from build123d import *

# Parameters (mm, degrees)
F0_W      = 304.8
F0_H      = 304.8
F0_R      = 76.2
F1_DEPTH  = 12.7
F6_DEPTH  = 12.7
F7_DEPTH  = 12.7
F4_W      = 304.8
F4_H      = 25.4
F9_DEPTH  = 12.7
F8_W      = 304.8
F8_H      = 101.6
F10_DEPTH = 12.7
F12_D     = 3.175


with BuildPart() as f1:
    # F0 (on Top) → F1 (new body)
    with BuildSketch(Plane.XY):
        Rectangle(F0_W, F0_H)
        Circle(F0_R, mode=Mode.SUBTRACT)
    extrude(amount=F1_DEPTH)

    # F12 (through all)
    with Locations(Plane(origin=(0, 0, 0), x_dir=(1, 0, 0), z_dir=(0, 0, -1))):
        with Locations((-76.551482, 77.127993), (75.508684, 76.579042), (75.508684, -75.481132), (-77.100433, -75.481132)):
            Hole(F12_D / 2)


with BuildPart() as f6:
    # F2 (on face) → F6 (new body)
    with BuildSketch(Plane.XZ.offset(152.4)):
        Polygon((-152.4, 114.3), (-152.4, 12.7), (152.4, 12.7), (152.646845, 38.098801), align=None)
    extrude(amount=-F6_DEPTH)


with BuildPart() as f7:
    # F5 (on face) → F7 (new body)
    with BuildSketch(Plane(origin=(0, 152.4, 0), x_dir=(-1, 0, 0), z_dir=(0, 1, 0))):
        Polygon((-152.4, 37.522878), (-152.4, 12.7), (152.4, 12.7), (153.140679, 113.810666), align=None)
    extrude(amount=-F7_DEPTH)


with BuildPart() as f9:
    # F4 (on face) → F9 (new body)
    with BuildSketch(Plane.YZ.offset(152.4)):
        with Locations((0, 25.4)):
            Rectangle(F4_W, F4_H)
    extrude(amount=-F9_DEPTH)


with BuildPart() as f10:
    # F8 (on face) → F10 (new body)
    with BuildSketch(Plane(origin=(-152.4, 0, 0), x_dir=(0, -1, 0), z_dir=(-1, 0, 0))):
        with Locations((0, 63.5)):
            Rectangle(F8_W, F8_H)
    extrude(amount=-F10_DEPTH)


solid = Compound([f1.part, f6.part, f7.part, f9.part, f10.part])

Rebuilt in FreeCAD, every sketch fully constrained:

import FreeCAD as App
import Part
import Sketcher
from FreeCAD import Vector
Q = App.Units.Quantity


def add_polygon(sketch, points):
    """Adds a closed chain of lines whose ends are joined by coincident constraints."""
    first, n = sketch.GeometryCount, len(points)
    for a, b in zip(points, points[1:] + points[:1]):
        sketch.addGeometry(Part.LineSegment(App.Vector(*a, 0), App.Vector(*b, 0)), False)
    for i in range(n):
        sketch.addConstraint(Sketcher.Constraint("Coincident", first + i, 2, first + (i + 1) % n, 1))

doc = App.newDocument("Part")
params = doc.addObject("Spreadsheet::Sheet", "Params")
for row, (alias, value) in enumerate([
    ("sketch1_diameter", "6 in"),
    ("sketch1_width", "12 in"),
    ("pad1_length", "0.5 in"),
    ("sketch2_diameter", "0.125 in"),
    ("hole_diameter", "0.125 in"),
    ("sketch3_width", "12 in"),
    ("sketch3_height", "4 in"),
    ("sketch3_length", "1 in"),
    ("pad2_length", "0.5 in"),
    ("sketch4_width", "12 in"),
    ("pad3_length", "0.5 in"),
    ("sketch5_width", "12 in"),
    ("sketch5_height", "1 in"),
    ("pad4_length", "0.5 in"),
    ("sketch6_width", "12 in"),
    ("sketch6_height", "4 in"),
    ("pad5_length", "0.5 in"),
], start=1):
    params.set(f"A{row}", alias)
    params.set(f"B{row}", "=" + value)
    params.setAlias(f"B{row}", alias)

body = doc.addObject("PartDesign::Body", "Body")

# Sketch on XY plane
sketch1 = body.newObject("Sketcher::SketchObject", "Sketch")
sketch1.AttachmentSupport = (doc.getObject("XY_Plane"), [""])
sketch1.MapMode = "FlatFace"
add_polygon(sketch1, [(-152, 152), (-152, -152), (152, -152), (152, 152)])  # lines 0-3
sketch1.addGeometry(Part.Circle(Vector(0, 0, 0), Vector(0, 0, 1), 76), False)  # 4
sketch1.addConstraint(Sketcher.Constraint("Vertical", 0))
sketch1.addConstraint(Sketcher.Constraint("Horizontal", 1))
sketch1.addConstraint(Sketcher.Constraint("Vertical", 2))
sketch1.addConstraint(Sketcher.Constraint("Horizontal", 3))
sketch1.addConstraint(Sketcher.Constraint("Coincident", 4, 3, -1, 1))
sketch1.addConstraint(Sketcher.Constraint("Symmetric", 0, 2, 2, 2, -1, 1))
sketch1.addConstraint(Sketcher.Constraint("Equal", 3, 0))
sketch1.addConstraint(Sketcher.Constraint("Diameter", 4, Q("6 in")))
sketch1.addConstraint(Sketcher.Constraint("DistanceX", 1, 1, 1, 2, Q("12 in")))
sketch1.setExpression("Constraints[11]", "Params.sketch1_diameter")
sketch1.setExpression("Constraints[12]", "Params.sketch1_width")
pad1 = body.newObject("PartDesign::Pad", "Pad")
pad1.Profile = sketch1
pad1.setExpression("Length", "Params.pad1_length")

# Sketch on XY plane
sketch2 = body.newObject("Sketcher::SketchObject", "Sketch001")
sketch2.AttachmentSupport = (doc.getObject("XY_Plane"), [""])
sketch2.MapMode = "FlatFace"
sketch2.addGeometry(Part.Circle(Vector(-76.6, -77.1, 0), Vector(0, 0, 1), 1.6), False)
sketch2.addGeometry(Part.Circle(Vector(75.5, -76.6, 0), Vector(0, 0, 1), 1.6), False)
sketch2.addGeometry(Part.Circle(Vector(75.5, 75.5, 0), Vector(0, 0, 1), 1.6), False)
sketch2.addGeometry(Part.Circle(Vector(-77.1, 75.5, 0), Vector(0, 0, 1), 1.6), False)
sketch2.addConstraint(Sketcher.Constraint("Equal", 0, 1))
sketch2.addConstraint(Sketcher.Constraint("Equal", 1, 2))
sketch2.addConstraint(Sketcher.Constraint("Equal", 2, 3))
sketch2.addConstraint(Sketcher.Constraint("Horizontal", 2, 3, 3, 3))
sketch2.addConstraint(Sketcher.Constraint("Vertical", 1, 3, 2, 3))
sketch2.addConstraint(Sketcher.Constraint("Diameter", 0, Q("0.125 in")))
sketch2.addConstraint(Sketcher.Constraint("DistanceX", 0, 3, -1, 1, 76.551482))
sketch2.addConstraint(Sketcher.Constraint("DistanceY", 1, 3, -1, 1, 76.579042))
sketch2.addConstraint(Sketcher.Constraint("DistanceY", 0, 3, 1, 3, 0.548951))
sketch2.addConstraint(Sketcher.Constraint("DistanceX", 3, 3, 0, 3, 0.548951))
sketch2.addConstraint(Sketcher.Constraint("DistanceX", -1, 1, 1, 3, 75.508684))
sketch2.addConstraint(Sketcher.Constraint("DistanceY", -1, 1, 2, 3, 75.481132))
sketch2.setExpression("Constraints[5]", "Params.sketch2_diameter")
doc.recompute()
hole = body.newObject("PartDesign::Hole", "Hole")
hole.Profile = sketch2
hole.ThreadType = "None"
hole.setExpression("Diameter", "Params.hole_diameter")
hole.DepthType = "ThroughAll"
hole.Reversed = True
body2 = doc.addObject("PartDesign::Body", "Body001")

# Sketch on XZ plane
sketch3 = body2.newObject("Sketcher::SketchObject", "Sketch002")
sketch3.AttachmentSupport = (doc.getObject("XZ_Plane001"), [""])
sketch3.MapMode = "FlatFace"
sketch3.AttachmentOffset = App.Placement(Vector(0, 0, 6 * 25.4), App.Rotation())
add_polygon(sketch3, [(-152.4, 114.3), (-152.4, 12.7), (152.4, 12.7), (152.646845, 38.098801)])  # lines 0-3
sketch3.addConstraint(Sketcher.Constraint("Vertical", 0))
sketch3.addConstraint(Sketcher.Constraint("Horizontal", 1))
sketch3.addConstraint(Sketcher.Constraint("DistanceX", 1, 1, 1, 2, Q("12 in")))
sketch3.addConstraint(Sketcher.Constraint("DistanceY", 0, 2, 0, 1, Q("4 in")))
sketch3.addConstraint(Sketcher.Constraint("Distance", 2, Q("1 in")))
sketch3.addConstraint(Sketcher.Constraint("DistanceX", 0, 2, -1, 1, Q("6 in")))
sketch3.addConstraint(Sketcher.Constraint("DistanceY", -1, 1, 0, 2, Q("0.5 in")))
sketch3.addConstraint(Sketcher.Constraint("DistanceY", -1, 1, 2, 2, 38.098801))
sketch3.setExpression("Constraints[6]", "Params.sketch3_width")
sketch3.setExpression("Constraints[7]", "Params.sketch3_height")
sketch3.setExpression("Constraints[8]", "Params.sketch3_length")
pad2 = body2.newObject("PartDesign::Pad", "Pad001")
pad2.Profile = sketch3
pad2.setExpression("Length", "Params.pad2_length")
pad2.Reversed = True
body3 = doc.addObject("PartDesign::Body", "Body002")

# Sketch on XZ plane
sketch4 = body3.newObject("Sketcher::SketchObject", "Sketch003")
sketch4.AttachmentSupport = (doc.getObject("XZ_Plane002"), [""])
sketch4.MapMode = "FlatFace"
sketch4.AttachmentOffset = App.Placement(Vector(0, 0, -6 * 25.4), App.Rotation())
add_polygon(sketch4, [(152, 38), (152, 13), (-152, 13), (-153, 114)])  # lines 0-3
sketch4.addConstraint(Sketcher.Constraint("Vertical", 0))
sketch4.addConstraint(Sketcher.Constraint("Horizontal", 1))
sketch4.addConstraint(Sketcher.Constraint("DistanceX", 1, 2, 1, 1, Q("12 in")))
sketch4.addConstraint(Sketcher.Constraint("DistanceX", -1, 1, 0, 2, Q("6 in")))
sketch4.addConstraint(Sketcher.Constraint("DistanceY", -1, 1, 0, 2, Q("0.5 in")))
sketch4.addConstraint(Sketcher.Constraint("Distance", 2, 101.113379))
sketch4.addConstraint(Sketcher.Constraint("Distance", 3, 314.920519))
sketch4.addConstraint(Sketcher.Constraint("DistanceY", 0, 2, 0, 1, 24.822878))
sketch4.setExpression("Constraints[6]", "Params.sketch4_width")
pad3 = body3.newObject("PartDesign::Pad", "Pad002")
pad3.Profile = sketch4
pad3.setExpression("Length", "Params.pad3_length")
body4 = doc.addObject("PartDesign::Body", "Body003")

# Sketch on YZ plane
sketch5 = body4.newObject("Sketcher::SketchObject", "Sketch004")
sketch5.AttachmentSupport = (doc.getObject("YZ_Plane003"), [""])
sketch5.MapMode = "FlatFace"
sketch5.AttachmentOffset = App.Placement(Vector(0, 0, 6 * 25.4), App.Rotation())
add_polygon(sketch5, [(-152, 38), (-152, 13), (152, 13), (152, 38)])  # lines 0-3
sketch5.addConstraint(Sketcher.Constraint("Vertical", 0))
sketch5.addConstraint(Sketcher.Constraint("Horizontal", 1))
sketch5.addConstraint(Sketcher.Constraint("Vertical", 2))
sketch5.addConstraint(Sketcher.Constraint("Horizontal", 3))
sketch5.addConstraint(Sketcher.Constraint("DistanceX", 1, 1, 1, 2, Q("12 in")))
sketch5.addConstraint(Sketcher.Constraint("DistanceY", 0, 2, 0, 1, Q("1 in")))
sketch5.addConstraint(Sketcher.Constraint("DistanceX", 0, 2, -1, 1, Q("6 in")))
sketch5.addConstraint(Sketcher.Constraint("DistanceY", -1, 1, 0, 2, Q("0.5 in")))
sketch5.setExpression("Constraints[8]", "Params.sketch5_width")
sketch5.setExpression("Constraints[9]", "Params.sketch5_height")
pad4 = body4.newObject("PartDesign::Pad", "Pad003")
pad4.Profile = sketch5
pad4.setExpression("Length", "Params.pad4_length")
pad4.Reversed = True
body5 = doc.addObject("PartDesign::Body", "Body004")

# Sketch on YZ plane
sketch6 = body5.newObject("Sketcher::SketchObject", "Sketch005")
sketch6.AttachmentSupport = (doc.getObject("YZ_Plane004"), [""])
sketch6.MapMode = "FlatFace"
sketch6.AttachmentOffset = App.Placement(Vector(0, 0, -6 * 25.4), App.Rotation())
add_polygon(sketch6, [(152, 114), (152, 13), (-152, 13), (-152, 114)])  # lines 0-3
sketch6.addConstraint(Sketcher.Constraint("Vertical", 0))
sketch6.addConstraint(Sketcher.Constraint("Horizontal", 1))
sketch6.addConstraint(Sketcher.Constraint("Vertical", 2))
sketch6.addConstraint(Sketcher.Constraint("Horizontal", 3))
sketch6.addConstraint(Sketcher.Constraint("DistanceX", 1, 2, 1, 1, Q("12 in")))
sketch6.addConstraint(Sketcher.Constraint("DistanceY", 0, 2, 0, 1, Q("4 in")))
sketch6.addConstraint(Sketcher.Constraint("DistanceX", -1, 1, 0, 2, Q("6 in")))
sketch6.addConstraint(Sketcher.Constraint("DistanceY", -1, 1, 0, 2, Q("0.5 in")))
sketch6.setExpression("Constraints[8]", "Params.sketch6_width")
sketch6.setExpression("Constraints[9]", "Params.sketch6_height")
pad5 = body5.newObject("PartDesign::Pad", "Pad004")
pad5.Profile = sketch6
pad5.setExpression("Length", "Params.pad5_length")

doc.recompute()
